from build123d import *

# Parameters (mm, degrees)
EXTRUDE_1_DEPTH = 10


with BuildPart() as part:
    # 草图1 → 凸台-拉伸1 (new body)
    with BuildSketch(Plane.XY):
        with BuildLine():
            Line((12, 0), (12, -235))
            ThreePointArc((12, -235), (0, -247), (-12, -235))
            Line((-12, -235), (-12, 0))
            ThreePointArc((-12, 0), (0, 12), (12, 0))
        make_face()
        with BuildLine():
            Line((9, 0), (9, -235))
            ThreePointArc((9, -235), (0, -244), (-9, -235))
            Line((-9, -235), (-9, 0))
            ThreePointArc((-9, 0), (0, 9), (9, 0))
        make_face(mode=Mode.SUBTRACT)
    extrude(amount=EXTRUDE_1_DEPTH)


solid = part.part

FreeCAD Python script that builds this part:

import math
import FreeCAD as App
import Part
import Sketcher
Q = App.Units.Quantity

doc = App.newDocument("Part")
body = doc.addObject("PartDesign::Body", "Body")

sketch1 = body.newObject("Sketcher::SketchObject", "Sketch")
sketch1.AttachmentSupport = (doc.getObject("XY_Plane"), [""])
sketch1.MapMode = "FlatFace"
sketch1.addGeometry([
    Part.LineSegment(App.Vector(12, -235, 0), App.Vector(12, 0, 0)),
    Part.ArcOfCircle(Part.Circle(App.Vector(0, 0, 0), App.Vector(0, 0, 1), 12), math.radians(0), math.radians(180)),
    Part.LineSegment(App.Vector(-12, 0, 0), App.Vector(-12, -235, 0)),
    Part.ArcOfCircle(Part.Circle(App.Vector(0, -235, 0), App.Vector(0, 0, 1), 12), math.radians(180), math.radians(360)),
    Part.LineSegment(App.Vector(9, 0, 0), App.Vector(9, -235, 0)),
    Part.ArcOfCircle(Part.Circle(App.Vector(0, -235, 0), App.Vector(0, 0, 1), 9), math.radians(180), math.radians(360)),
    Part.LineSegment(App.Vector(-9, -235, 0), App.Vector(-9, 0, 0)),
    Part.ArcOfCircle(Part.Circle(App.Vector(0, 0, 0), App.Vector(0, 0, 1), 9), math.radians(0), math.radians(180)),
], False)
sketch1.addConstraint([
    Sketcher.Constraint("Tangent", 0, 2, 1, 1),
    Sketcher.Constraint("Tangent", 1, 2, 2, 1),
    Sketcher.Constraint("Tangent", 2, 2, 3, 1),
    Sketcher.Constraint("Tangent", 3, 2, 0, 1),
    Sketcher.Constraint("Tangent", 4, 2, 5, 2),
    Sketcher.Constraint("Tangent", 5, 1, 6, 1),
    Sketcher.Constraint("Tangent", 6, 2, 7, 2),
    Sketcher.Constraint("Tangent", 7, 1, 4, 1),
    Sketcher.Constraint("Vertical", 0),
    Sketcher.Constraint("Vertical", 2),
    Sketcher.Constraint("Vertical", 4),
    Sketcher.Constraint("Vertical", 6),
    Sketcher.Constraint("Coincident", 1, 3, -1, 1),
    Sketcher.Constraint("Coincident", 7, 3, -1, 1),
    Sketcher.Constraint("Horizontal", 5, 3, 2, 2),
    Sketcher.Constraint("Radius", 1, Q("12 mm")),
    Sketcher.Constraint("Radius", 5, Q("9 mm")),
    Sketcher.Constraint("DistanceY", 0, 1, 0, 2, Q("235 mm")),
])
pad1 = body.newObject("PartDesign::Pad", "Pad")
pad1.Profile = sketch1
pad1.Length = 10

doc.recompute()
